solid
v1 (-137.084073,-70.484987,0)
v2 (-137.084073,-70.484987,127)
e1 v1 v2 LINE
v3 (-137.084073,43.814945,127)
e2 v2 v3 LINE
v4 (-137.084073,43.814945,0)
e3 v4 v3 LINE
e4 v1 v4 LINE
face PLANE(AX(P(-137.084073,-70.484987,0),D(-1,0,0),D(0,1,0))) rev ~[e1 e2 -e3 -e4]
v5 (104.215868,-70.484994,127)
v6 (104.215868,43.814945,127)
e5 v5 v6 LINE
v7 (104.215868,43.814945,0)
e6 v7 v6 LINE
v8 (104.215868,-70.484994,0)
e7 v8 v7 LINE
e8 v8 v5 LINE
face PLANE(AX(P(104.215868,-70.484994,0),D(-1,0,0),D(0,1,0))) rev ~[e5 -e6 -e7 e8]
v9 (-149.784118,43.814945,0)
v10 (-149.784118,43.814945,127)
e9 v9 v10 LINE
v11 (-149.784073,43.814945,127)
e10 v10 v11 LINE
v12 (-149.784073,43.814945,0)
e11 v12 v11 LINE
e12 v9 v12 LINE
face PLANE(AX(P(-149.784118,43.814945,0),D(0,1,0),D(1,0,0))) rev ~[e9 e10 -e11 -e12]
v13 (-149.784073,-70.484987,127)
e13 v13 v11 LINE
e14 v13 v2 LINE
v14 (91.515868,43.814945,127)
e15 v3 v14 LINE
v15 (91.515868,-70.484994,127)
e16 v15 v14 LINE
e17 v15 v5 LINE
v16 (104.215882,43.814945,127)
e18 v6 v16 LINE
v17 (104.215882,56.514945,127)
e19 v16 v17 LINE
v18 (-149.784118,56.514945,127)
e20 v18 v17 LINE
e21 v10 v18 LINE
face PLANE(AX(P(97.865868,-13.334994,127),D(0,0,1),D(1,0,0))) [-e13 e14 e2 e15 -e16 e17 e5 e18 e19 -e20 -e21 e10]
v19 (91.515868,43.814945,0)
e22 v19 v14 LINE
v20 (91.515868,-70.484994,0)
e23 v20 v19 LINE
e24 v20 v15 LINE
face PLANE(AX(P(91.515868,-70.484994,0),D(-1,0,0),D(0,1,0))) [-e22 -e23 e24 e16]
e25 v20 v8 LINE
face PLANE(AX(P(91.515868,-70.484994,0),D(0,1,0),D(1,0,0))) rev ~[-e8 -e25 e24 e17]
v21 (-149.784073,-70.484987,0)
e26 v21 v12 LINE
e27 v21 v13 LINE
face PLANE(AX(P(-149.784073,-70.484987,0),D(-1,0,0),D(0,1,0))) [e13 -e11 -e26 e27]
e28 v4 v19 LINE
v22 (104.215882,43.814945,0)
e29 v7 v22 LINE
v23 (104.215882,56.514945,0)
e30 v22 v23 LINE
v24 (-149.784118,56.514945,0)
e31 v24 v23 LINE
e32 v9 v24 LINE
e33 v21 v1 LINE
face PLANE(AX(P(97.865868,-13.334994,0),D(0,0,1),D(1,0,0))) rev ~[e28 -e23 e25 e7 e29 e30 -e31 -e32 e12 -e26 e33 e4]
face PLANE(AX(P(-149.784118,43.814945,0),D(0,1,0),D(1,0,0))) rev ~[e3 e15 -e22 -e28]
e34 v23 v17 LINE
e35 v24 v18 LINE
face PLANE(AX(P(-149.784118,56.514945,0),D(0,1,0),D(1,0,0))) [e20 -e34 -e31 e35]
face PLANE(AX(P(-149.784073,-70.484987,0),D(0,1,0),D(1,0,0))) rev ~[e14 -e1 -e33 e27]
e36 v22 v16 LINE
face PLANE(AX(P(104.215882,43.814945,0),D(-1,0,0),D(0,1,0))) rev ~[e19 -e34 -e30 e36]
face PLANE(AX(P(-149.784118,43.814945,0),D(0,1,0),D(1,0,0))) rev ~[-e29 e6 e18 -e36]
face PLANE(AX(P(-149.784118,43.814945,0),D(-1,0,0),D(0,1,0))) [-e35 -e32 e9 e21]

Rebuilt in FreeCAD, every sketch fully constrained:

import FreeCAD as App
import Part
import Sketcher
Q = App.Units.Quantity


def add_polygon(sketch, points):
    """Adds a closed chain of lines whose ends are joined by coincident constraints."""
    first, n = sketch.GeometryCount, len(points)
    for a, b in zip(points, points[1:] + points[:1]):
        sketch.addGeometry(Part.LineSegment(App.Vector(*a, 0), App.Vector(*b, 0)), False)
    for i in range(n):
        sketch.addConstraint(Sketcher.Constraint("Coincident", first + i, 2, first + (i + 1) % n, 1))

doc = App.newDocument("Part")
body = doc.addObject("PartDesign::Body", "Body")

sketch1 = body.newObject("Sketcher::SketchObject", "Sketch")
sketch1.AttachmentSupport = (doc.getObject("XY_Plane"), [""])
sketch1.MapMode = "FlatFace"
add_polygon(sketch1, [(-149.784118, 56.514945), (-149.784118, 43.814945), (104.215882, 43.814945), (104.215882, 56.514945)])
sketch1.addConstraint([
    Sketcher.Constraint("Vertical", 0),
    Sketcher.Constraint("Horizontal", 1),
    Sketcher.Constraint("Vertical", 2),
    Sketcher.Constraint("Horizontal", 3),
    Sketcher.Constraint("DistanceX", 1, 1, 1, 2, Q("10 in")),
    Sketcher.Constraint("DistanceY", 0, 2, 0, 1, Q("0.5 in")),
    Sketcher.Constraint("DistanceX", 0, 2, -1, 1, 149.784118),
    Sketcher.Constraint("DistanceY", -1, 1, 0, 2, 43.814945),
])
pad1 = body.newObject("PartDesign::Pad", "Pad")
pad1.Profile = sketch1
pad1.Length = Q("5 in")

sketch2 = body.newObject("Sketcher::SketchObject", "Sketch001")
sketch2.AttachmentSupport = (doc.getObject("XY_Plane"), [""])
sketch2.MapMode = "FlatFace"
add_polygon(sketch2, [(-149.784073, 43.815013), (-149.784073, -70.484987), (-137.084073, -70.484987), (-137.084073, 43.815013)])
sketch2.addConstraint([
    Sketcher.Constraint("Vertical", 0),
    Sketcher.Constraint("Horizontal", 1),
    Sketcher.Constraint("Vertical", 2),
    Sketcher.Constraint("Horizontal", 3),
    Sketcher.Constraint("DistanceX", 1, 1, 1, 2, Q("0.5 in")),
    Sketcher.Constraint("DistanceY", 0, 2, 0, 1, Q("4.5 in")),
    Sketcher.Constraint("DistanceX", 0, 2, -1, 1, 149.784073),
    Sketcher.Constraint("DistanceY", 0, 2, -1, 1, 70.484987),
])
pad2 = body.newObject("PartDesign::Pad", "Pad001")
pad2.Profile = sketch2
pad2.Length = Q("5 in")

sketch3 = body.newObject("Sketcher::SketchObject", "Sketch002")
sketch3.AttachmentSupport = (doc.getObject("XY_Plane"), [""])
sketch3.MapMode = "FlatFace"
add_polygon(sketch3, [(91.515868, 43.815006), (91.515868, -70.484994), (104.215868, -70.484994), (104.215868, 43.815006)])
sketch3.addConstraint([
    Sketcher.Constraint("Vertical", 0),
    Sketcher.Constraint("Horizontal", 1),
    Sketcher.Constraint("Vertical", 2),
    Sketcher.Constraint("Horizontal", 3),
    Sketcher.Constraint("DistanceX", 1, 1, 1, 2, Q("0.5 in")),
    Sketcher.Constraint("DistanceY", 0, 2, 0, 1, Q("4.5 in")),
    Sketcher.Constraint("DistanceX", -1, 1, 1, 2, 104.215868),
    Sketcher.Constraint("DistanceY", 0, 2, -1, 1, 70.484994),
])
pad3 = body.newObject("PartDesign::Pad", "Pad002")
pad3.Profile = sketch3
pad3.Length = Q("5 in")

doc.recompute()
